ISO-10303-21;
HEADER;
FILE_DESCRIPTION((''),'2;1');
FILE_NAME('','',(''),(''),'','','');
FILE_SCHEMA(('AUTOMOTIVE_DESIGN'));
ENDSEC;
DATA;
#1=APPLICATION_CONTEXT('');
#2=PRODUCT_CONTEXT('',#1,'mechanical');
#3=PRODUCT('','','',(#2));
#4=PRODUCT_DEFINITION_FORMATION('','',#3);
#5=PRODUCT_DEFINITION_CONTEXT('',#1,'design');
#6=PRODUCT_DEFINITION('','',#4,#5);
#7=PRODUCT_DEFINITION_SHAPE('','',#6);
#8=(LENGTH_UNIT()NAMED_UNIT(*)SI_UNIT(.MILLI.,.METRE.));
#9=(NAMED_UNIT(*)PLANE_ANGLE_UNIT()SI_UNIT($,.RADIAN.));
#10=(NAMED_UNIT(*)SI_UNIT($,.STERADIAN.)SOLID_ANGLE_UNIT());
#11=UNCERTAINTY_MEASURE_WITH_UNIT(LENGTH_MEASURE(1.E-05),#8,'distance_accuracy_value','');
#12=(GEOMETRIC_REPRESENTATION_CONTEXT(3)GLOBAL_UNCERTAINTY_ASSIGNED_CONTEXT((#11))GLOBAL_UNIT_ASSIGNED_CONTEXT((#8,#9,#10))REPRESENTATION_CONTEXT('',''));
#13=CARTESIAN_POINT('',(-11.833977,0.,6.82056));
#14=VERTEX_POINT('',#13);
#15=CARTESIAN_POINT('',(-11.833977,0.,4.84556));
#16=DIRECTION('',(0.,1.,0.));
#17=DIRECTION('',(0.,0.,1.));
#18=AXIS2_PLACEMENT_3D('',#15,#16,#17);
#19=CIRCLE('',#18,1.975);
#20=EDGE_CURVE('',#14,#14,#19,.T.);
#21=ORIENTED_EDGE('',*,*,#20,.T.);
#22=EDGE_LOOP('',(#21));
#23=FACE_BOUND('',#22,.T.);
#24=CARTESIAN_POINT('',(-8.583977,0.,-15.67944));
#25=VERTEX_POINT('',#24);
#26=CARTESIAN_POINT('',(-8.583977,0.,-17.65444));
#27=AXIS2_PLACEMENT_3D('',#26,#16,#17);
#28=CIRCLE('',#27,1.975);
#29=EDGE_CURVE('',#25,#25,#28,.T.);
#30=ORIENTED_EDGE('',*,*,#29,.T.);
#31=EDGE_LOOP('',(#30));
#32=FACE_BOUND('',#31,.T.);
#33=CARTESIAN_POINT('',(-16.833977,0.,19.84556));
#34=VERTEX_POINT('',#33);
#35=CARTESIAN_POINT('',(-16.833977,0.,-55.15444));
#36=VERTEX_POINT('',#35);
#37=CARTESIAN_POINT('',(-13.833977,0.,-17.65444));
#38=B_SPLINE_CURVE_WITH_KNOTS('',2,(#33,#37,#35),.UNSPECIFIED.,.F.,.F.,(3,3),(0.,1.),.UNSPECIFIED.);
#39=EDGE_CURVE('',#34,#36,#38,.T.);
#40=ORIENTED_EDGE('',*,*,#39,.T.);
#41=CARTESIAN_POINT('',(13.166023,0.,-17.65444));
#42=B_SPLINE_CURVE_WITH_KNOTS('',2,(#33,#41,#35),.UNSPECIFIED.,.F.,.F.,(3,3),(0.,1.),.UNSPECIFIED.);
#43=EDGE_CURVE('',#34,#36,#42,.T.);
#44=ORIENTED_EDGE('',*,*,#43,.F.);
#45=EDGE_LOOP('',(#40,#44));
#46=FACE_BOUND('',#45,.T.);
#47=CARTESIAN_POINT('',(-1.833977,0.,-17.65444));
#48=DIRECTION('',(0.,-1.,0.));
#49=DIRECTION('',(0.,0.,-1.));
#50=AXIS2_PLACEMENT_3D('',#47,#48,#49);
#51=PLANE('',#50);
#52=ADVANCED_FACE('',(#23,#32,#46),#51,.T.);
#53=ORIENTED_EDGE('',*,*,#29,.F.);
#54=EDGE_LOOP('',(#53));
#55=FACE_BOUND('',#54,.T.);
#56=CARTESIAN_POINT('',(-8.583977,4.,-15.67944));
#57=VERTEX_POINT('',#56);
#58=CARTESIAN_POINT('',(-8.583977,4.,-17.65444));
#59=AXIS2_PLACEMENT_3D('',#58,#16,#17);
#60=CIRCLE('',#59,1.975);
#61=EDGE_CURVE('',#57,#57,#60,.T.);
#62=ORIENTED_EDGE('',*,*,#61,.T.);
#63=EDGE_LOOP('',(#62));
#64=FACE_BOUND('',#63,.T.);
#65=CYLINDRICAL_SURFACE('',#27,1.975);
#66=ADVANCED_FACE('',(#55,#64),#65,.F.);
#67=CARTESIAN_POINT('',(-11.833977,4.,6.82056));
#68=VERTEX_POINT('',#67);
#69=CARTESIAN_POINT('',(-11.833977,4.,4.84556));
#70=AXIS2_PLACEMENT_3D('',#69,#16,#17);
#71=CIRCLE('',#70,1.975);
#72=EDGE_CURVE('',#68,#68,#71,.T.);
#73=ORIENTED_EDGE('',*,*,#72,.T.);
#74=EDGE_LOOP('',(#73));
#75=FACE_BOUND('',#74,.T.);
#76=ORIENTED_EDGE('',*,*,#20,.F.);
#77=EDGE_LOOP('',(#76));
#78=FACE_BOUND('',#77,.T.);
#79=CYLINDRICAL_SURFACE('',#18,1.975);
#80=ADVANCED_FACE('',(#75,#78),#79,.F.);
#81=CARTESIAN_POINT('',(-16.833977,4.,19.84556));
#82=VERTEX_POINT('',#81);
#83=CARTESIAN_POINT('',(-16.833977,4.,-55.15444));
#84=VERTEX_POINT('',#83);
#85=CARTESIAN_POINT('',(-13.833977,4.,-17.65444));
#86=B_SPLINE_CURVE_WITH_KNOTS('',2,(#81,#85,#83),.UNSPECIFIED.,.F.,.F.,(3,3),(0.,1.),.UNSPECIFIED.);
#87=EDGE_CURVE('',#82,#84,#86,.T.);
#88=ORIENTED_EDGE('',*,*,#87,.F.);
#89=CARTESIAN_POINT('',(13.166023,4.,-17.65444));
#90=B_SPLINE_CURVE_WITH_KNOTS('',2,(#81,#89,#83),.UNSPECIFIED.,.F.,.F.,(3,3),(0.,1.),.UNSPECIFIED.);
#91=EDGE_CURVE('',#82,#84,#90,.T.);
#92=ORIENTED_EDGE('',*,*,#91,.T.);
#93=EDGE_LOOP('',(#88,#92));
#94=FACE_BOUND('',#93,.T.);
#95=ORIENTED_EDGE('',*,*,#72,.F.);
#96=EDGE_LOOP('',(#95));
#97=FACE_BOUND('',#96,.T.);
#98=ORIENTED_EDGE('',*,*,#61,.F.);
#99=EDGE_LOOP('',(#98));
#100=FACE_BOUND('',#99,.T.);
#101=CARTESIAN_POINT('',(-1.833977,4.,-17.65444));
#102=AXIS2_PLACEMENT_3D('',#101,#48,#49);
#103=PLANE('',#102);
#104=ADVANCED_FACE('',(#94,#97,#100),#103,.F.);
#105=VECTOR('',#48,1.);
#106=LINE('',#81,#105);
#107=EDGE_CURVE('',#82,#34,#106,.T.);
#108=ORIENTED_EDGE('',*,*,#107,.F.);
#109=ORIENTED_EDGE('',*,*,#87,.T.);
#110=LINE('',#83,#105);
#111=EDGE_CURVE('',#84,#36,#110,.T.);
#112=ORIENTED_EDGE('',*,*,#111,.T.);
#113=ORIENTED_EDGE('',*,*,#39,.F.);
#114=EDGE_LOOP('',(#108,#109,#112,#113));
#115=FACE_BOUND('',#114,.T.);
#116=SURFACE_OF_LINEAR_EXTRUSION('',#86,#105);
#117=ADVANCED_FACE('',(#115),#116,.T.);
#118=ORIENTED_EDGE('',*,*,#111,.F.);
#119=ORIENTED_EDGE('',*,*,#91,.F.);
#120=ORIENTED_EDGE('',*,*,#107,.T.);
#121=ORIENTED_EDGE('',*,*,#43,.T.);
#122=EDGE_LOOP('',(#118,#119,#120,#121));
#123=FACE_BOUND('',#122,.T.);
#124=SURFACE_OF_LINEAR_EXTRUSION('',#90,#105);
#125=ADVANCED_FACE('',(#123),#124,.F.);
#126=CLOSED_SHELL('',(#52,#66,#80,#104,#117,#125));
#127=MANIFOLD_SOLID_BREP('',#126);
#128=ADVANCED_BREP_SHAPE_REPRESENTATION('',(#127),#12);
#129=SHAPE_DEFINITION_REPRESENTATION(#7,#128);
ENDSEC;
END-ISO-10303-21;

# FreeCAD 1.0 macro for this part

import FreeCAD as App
import Part
import Sketcher
Q = App.Units.Quantity

doc = App.newDocument("Part")
body = doc.addObject("PartDesign::Body", "Body")

# Sketch on XZ plane
sketch1 = body.newObject("Sketcher::SketchObject", "Sketch")
sketch1.AttachmentSupport = (doc.getObject("XZ_Plane"), [""])
sketch1.MapMode = "FlatFace"
sketch1.addGeometry([
    Part.BSplineCurve([App.Vector(-16.833977, 19.84556, 0), App.Vector(13.166023, -17.65444, 0), App.Vector(-16.833977, -55.15444, 0)], [3, 3], [0, 1], False, 2, [1, 1, 1], False),
    Part.BSplineCurve([App.Vector(-16.833977, 19.84556, 0), App.Vector(-13.833977, -17.65444, 0), App.Vector(-16.833977, -55.15444, 0)], [3, 3], [0, 1], False, 2, [1, 1, 1], False),
], False)
sketch1.addConstraint([
    Sketcher.Constraint("Block", 0),
    Sketcher.Constraint("Block", 1),
])
pad1 = body.newObject("PartDesign::Pad", "Pad")
pad1.Profile = sketch1
pad1.Length = 4
pad1.Reversed = True

# Sketch on XZ plane
sketch2 = body.newObject("Sketcher::SketchObject", "Sketch001")
sketch2.AttachmentSupport = (doc.getObject("XZ_Plane"), [""])
sketch2.MapMode = "FlatFace"
sketch2.AttachmentOffset = App.Placement(App.Vector(0, 0, -4), App.Rotation())
sketch2.addGeometry([
    Part.Circle(App.Vector(-8.6, -17.7, 0), App.Vector(0, 0, 1), 2),
    Part.Circle(App.Vector(-11.8, 4.8, 0), App.Vector(0, 0, 1), 2),
], False)
sketch2.addConstraint([
    Sketcher.Constraint("Equal", 0, 1),
    Sketcher.Constraint("Diameter", 0, Q("3.95 mm")),
    Sketcher.Constraint("DistanceY", 0, 3, 1, 3, Q("22.5 mm")),
    Sketcher.Constraint("DistanceX", 1, 3, 0, 3, Q("3.25 mm")),
    Sketcher.Constraint("DistanceY", 0, 3, -1, 1, Q("17.65444 mm")),
    Sketcher.Constraint("DistanceX", 0, 3, -1, 1, Q("8.583977 mm")),
])
pocket1 = body.newObject("PartDesign::Pocket", "Pocket")
pocket1.Profile = sketch2
pocket1.Type = "ThroughAll"
pocket1.Reversed = True

doc.recompute()
